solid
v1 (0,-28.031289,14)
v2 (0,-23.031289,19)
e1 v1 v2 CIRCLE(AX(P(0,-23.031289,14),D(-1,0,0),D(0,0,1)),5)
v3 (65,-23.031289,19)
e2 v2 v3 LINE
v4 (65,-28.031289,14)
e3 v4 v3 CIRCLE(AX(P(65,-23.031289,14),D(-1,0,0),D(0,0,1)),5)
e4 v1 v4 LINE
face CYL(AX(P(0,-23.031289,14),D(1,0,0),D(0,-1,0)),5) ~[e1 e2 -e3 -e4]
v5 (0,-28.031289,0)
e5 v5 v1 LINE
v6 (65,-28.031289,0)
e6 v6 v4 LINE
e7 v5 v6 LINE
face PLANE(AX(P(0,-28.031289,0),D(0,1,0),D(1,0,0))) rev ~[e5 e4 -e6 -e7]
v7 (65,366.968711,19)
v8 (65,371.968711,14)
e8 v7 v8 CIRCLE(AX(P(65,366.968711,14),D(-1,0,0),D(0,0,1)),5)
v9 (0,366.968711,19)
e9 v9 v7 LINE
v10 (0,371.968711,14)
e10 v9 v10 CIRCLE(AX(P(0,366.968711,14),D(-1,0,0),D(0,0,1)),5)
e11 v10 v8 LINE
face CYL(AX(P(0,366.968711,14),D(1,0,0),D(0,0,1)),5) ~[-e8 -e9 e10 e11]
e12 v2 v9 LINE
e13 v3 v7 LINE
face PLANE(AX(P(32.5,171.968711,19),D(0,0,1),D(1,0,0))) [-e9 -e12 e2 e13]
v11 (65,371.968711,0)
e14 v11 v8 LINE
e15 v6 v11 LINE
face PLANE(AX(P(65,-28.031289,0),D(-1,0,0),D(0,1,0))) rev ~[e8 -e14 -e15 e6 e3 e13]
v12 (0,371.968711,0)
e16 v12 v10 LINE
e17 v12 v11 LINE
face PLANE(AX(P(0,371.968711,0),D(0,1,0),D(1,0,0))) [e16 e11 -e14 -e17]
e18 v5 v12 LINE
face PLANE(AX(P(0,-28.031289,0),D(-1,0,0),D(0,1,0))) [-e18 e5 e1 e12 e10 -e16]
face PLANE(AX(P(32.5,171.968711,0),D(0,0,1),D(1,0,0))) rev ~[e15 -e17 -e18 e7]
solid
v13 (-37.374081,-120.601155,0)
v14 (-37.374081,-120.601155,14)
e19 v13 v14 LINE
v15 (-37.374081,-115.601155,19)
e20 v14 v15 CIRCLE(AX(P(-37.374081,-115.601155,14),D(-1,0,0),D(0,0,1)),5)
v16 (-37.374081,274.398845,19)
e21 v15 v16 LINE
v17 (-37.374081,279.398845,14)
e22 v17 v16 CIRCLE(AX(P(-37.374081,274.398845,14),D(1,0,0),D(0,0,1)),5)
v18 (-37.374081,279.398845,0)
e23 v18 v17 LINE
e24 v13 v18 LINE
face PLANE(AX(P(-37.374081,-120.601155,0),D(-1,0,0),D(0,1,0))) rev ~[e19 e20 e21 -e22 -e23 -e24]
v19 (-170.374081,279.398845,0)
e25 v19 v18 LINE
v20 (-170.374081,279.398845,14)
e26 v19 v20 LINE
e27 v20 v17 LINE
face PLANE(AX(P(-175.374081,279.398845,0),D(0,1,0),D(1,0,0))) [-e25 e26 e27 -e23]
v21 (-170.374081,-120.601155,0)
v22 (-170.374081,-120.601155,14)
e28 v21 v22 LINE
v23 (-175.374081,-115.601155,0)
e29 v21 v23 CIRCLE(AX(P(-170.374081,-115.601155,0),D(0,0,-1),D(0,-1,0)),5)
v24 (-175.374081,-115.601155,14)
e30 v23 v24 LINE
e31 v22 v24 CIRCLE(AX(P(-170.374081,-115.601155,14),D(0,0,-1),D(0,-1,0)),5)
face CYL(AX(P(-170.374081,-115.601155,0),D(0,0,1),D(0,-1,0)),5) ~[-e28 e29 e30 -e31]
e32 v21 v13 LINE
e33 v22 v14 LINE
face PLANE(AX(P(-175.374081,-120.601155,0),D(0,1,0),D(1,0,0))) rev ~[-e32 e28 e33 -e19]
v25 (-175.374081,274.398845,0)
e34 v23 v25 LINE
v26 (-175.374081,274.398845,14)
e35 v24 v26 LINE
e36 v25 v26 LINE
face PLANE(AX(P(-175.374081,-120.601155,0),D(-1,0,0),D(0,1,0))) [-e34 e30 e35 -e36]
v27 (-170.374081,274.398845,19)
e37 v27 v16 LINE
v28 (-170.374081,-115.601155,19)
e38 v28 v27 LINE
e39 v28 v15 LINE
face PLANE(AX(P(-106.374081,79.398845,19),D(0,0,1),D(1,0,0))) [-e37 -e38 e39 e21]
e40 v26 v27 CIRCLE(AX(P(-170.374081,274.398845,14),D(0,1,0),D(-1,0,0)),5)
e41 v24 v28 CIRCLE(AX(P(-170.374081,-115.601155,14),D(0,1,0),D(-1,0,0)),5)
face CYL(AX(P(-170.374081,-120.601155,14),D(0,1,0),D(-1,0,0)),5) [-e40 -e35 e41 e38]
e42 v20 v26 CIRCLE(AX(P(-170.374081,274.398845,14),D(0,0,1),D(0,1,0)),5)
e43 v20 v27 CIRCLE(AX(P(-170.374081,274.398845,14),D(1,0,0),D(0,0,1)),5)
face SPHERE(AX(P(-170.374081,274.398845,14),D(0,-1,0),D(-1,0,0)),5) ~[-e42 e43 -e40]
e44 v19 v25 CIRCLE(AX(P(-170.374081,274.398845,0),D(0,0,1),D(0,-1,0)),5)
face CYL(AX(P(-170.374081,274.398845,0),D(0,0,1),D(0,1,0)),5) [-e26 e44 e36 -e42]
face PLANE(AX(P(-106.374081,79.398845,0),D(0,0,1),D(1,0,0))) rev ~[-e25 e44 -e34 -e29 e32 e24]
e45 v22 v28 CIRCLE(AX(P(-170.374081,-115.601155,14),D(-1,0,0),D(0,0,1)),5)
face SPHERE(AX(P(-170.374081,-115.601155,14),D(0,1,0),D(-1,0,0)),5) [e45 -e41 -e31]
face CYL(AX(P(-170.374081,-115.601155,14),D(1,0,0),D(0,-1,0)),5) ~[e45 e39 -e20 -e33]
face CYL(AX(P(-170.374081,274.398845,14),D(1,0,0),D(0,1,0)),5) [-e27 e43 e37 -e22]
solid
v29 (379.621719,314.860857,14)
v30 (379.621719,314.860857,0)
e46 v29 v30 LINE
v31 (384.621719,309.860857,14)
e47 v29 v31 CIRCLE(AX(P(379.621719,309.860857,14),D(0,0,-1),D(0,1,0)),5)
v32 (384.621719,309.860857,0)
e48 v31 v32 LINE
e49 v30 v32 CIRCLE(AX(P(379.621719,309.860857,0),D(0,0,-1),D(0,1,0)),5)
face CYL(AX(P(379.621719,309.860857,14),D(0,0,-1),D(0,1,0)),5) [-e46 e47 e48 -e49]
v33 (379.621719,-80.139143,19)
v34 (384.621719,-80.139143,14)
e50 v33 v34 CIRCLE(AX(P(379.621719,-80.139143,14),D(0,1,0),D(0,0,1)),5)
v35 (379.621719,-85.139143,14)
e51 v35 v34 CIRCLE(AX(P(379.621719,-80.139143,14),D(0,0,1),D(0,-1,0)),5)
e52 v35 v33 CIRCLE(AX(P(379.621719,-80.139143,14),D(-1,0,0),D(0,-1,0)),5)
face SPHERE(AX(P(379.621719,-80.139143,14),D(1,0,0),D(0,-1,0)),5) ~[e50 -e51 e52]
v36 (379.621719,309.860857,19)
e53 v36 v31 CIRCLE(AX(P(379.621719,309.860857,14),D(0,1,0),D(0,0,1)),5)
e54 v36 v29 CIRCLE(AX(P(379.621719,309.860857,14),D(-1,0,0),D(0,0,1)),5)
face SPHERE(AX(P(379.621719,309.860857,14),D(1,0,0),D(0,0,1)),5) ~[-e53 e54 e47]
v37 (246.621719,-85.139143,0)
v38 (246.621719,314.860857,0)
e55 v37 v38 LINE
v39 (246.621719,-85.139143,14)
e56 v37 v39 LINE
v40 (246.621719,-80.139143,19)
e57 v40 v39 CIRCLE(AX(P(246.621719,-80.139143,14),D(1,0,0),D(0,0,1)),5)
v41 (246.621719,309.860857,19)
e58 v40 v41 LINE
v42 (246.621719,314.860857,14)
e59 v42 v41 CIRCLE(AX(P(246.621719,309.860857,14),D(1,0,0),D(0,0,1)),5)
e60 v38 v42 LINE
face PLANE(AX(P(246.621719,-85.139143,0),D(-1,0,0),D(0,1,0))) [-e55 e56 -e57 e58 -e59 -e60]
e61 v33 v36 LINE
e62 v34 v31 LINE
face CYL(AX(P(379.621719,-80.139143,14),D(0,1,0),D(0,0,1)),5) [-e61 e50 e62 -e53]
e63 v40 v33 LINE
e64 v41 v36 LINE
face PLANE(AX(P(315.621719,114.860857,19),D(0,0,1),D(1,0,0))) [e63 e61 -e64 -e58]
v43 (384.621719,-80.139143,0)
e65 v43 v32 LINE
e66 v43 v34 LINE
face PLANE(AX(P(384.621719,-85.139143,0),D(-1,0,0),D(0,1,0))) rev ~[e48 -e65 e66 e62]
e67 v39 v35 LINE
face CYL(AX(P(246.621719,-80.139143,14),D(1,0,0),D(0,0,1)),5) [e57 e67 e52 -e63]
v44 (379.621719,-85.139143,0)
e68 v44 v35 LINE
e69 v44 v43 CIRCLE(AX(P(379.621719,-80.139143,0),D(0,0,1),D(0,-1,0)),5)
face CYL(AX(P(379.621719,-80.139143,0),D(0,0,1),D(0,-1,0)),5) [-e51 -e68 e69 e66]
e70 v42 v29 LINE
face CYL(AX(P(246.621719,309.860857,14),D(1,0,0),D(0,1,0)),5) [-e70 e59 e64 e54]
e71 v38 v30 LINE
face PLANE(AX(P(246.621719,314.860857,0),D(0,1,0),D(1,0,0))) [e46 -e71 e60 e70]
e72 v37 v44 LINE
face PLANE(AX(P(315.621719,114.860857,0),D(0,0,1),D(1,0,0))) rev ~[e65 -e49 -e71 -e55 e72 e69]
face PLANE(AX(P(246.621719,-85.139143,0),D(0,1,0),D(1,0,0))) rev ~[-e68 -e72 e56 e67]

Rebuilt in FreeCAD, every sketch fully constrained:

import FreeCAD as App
import Part
import Sketcher

V = App.Vector


def edges_at(feature, points):
    """Names of the edges that pass closest to the given points."""
    edges = feature.Shape.Edges
    near = lambda p: min(range(len(edges)), key=lambda i: edges[i].distToShape(Part.Vertex(*p))[0])
    return sorted({f"Edge{near(p) + 1}" for p in points})


def add_polygon(sketch, points):
    """Adds a closed chain of lines whose ends are joined by coincident constraints."""
    first, n = sketch.GeometryCount, len(points)
    for a, b in zip(points, points[1:] + points[:1]):
        sketch.addGeometry(Part.LineSegment(App.Vector(*a, 0), App.Vector(*b, 0)), False)
    for i in range(n):
        sketch.addConstraint(Sketcher.Constraint("Coincident", first + i, 2, first + (i + 1) % n, 1))

doc = App.newDocument("Part")
body = doc.addObject("PartDesign::Body", "Body")
body.AllowCompound = True

# Sketch on XY plane
sketch1 = body.newObject("Sketcher::SketchObject", "Sketch")
sketch1.AttachmentSupport = (doc.getObject("XY_Plane"), [""])
sketch1.MapMode = "FlatFace"
add_polygon(sketch1, [(-175, 279), (-175, -121), (-37, -121), (-37, 279)])  # lines 0-3
add_polygon(sketch1, [(0, 372), (0, -28), (65, -28), (65, 372)])  # lines 4-7
add_polygon(sketch1, [(247, 315), (247, -85), (385, -85), (385, 315)])  # lines 8-11
sketch1.addConstraint([
    Sketcher.Constraint("Vertical", 0),
    Sketcher.Constraint("Horizontal", 1),
    Sketcher.Constraint("Vertical", 2),
    Sketcher.Constraint("Horizontal", 3),
    Sketcher.Constraint("Vertical", 4),
    Sketcher.Constraint("Horizontal", 5),
    Sketcher.Constraint("Vertical", 6),
    Sketcher.Constraint("Horizontal", 7),
    Sketcher.Constraint("Vertical", 8),
    Sketcher.Constraint("Horizontal", 9),
    Sketcher.Constraint("Vertical", 10),
    Sketcher.Constraint("Horizontal", 11),
    Sketcher.Constraint("PointOnObject", 4, 2, -2),
    Sketcher.Constraint("Equal", 3, 9),
    Sketcher.Constraint("Equal", 2, 4),
    Sketcher.Constraint("Equal", 6, 8),
    Sketcher.Constraint("DistanceX", 1, 1, 1, 2, 138.0),
    Sketcher.Constraint("DistanceX", 5, 1, 5, 2, 65.0),
    Sketcher.Constraint("DistanceY", 0, 2, 0, 1, 400.0),
    Sketcher.Constraint("DistanceX", 1, 2, 8, 2, 283.9958),
    Sketcher.Constraint("DistanceX", 0, 2, -1, 1, 175.374081),
    Sketcher.Constraint("DistanceY", 4, 2, -1, 1, 28.031289),
    Sketcher.Constraint("DistanceY", 8, 2, 2, 2, 364.537988),
    Sketcher.Constraint("DistanceY", 0, 2, -1, 1, 120.601155),
])
pad1 = body.newObject("PartDesign::Pad", "Pad")
pad1.Profile = sketch1
pad1.Length = 19
doc.recompute()

fillet = body.newObject("PartDesign::Fillet", "Fillet")
fillet.Base = (pad1, edges_at(pad1, [(-175.374, 79.399, 19)]))
fillet.Radius = 5
doc.recompute()

fillet2 = body.newObject("PartDesign::Fillet", "Fillet001")
fillet2.Base = (fillet, edges_at(fillet, [(-103.874, -120.601, 19), (32.5, -28.031, 19)]))
fillet2.Radius = 5
doc.recompute()

fillet3 = body.newObject("PartDesign::Fillet", "Fillet002")
fillet3.Base = (fillet2, edges_at(fillet2, [(-103.874, 279.399, 19)]))
fillet3.Radius = 5
doc.recompute()

fillet4 = body.newObject("PartDesign::Fillet", "Fillet003")
fillet4.Base = (fillet3, edges_at(fillet3, [(32.5, 371.969, 19)]))
fillet4.Radius = 5
doc.recompute()

fillet5 = body.newObject("PartDesign::Fillet", "Fillet004")
fillet5.Base = (fillet4, edges_at(fillet4, [(315.622, 314.861, 19)]))
fillet5.Radius = 5
doc.recompute()

fillet6 = body.newObject("PartDesign::Fillet", "Fillet005")
fillet6.Base = (fillet5, edges_at(fillet5, [(315.622, -85.139, 19)]))
fillet6.Radius = 5
doc.recompute()

fillet7 = body.newObject("PartDesign::Fillet", "Fillet006")
fillet7.Base = (fillet6, edges_at(fillet6, [(384.622, 114.861, 19)]))
fillet7.Radius = 5

doc.recompute()
